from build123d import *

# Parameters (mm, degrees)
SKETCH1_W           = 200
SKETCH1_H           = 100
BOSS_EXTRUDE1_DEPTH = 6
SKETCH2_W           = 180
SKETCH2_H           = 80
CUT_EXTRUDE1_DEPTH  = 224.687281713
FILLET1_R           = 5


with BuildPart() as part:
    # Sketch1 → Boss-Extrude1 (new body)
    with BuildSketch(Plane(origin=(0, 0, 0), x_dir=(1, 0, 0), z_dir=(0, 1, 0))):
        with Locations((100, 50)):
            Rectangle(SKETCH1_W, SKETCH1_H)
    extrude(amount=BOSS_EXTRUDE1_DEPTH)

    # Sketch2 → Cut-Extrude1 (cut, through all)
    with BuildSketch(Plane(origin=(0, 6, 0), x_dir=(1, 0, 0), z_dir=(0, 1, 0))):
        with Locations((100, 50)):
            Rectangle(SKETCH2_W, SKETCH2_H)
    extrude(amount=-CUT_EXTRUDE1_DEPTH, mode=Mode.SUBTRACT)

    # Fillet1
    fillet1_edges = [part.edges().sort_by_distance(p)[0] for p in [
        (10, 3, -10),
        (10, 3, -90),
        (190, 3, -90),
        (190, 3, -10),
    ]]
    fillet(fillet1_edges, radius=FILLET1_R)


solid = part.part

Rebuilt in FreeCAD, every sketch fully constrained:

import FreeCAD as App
import Part
import Sketcher

V = App.Vector


def edges_at(feature, points):
    """Names of the edges that pass closest to the given points."""
    edges = feature.Shape.Edges
    near = lambda p: min(range(len(edges)), key=lambda i: edges[i].distToShape(Part.Vertex(*p))[0])
    return sorted({f"Edge{near(p) + 1}" for p in points})


def add_polygon(sketch, points):
    """Adds a closed chain of lines whose ends are joined by coincident constraints."""
    first, n = sketch.GeometryCount, len(points)
    for a, b in zip(points, points[1:] + points[:1]):
        sketch.addGeometry(Part.LineSegment(App.Vector(*a, 0), App.Vector(*b, 0)), False)
    for i in range(n):
        sketch.addConstraint(Sketcher.Constraint("Coincident", first + i, 2, first + (i + 1) % n, 1))

doc = App.newDocument("Part")
body = doc.addObject("PartDesign::Body", "Body")

sketch1 = body.newObject("Sketcher::SketchObject", "Sketch")
sketch1.AttachmentSupport = (doc.getObject("XZ_Plane"), [""])
sketch1.MapMode = "FlatFace"
add_polygon(sketch1, [(0, -100), (0, 0), (200, 0), (200, -100)])
sketch1.addConstraint(Sketcher.Constraint("Vertical", 0))
sketch1.addConstraint(Sketcher.Constraint("Horizontal", 1))
sketch1.addConstraint(Sketcher.Constraint("Vertical", 2))
sketch1.addConstraint(Sketcher.Constraint("Horizontal", 3))
sketch1.addConstraint(Sketcher.Constraint("Coincident", 0, 2, -1, 1))
sketch1.addConstraint(Sketcher.Constraint("DistanceX", 1, 1, 1, 2, 200.0))
sketch1.addConstraint(Sketcher.Constraint("DistanceY", 0, 1, 0, 2, 100.0))
pad1 = body.newObject("PartDesign::Pad", "Pad")
pad1.Profile = sketch1
pad1.Length = 6
pad1.Reversed = True

sketch2 = body.newObject("Sketcher::SketchObject", "Sketch001")
sketch2.AttachmentSupport = (doc.getObject("XZ_Plane"), [""])
sketch2.MapMode = "FlatFace"
sketch2.AttachmentOffset = App.Placement(V(0, 0, -6), App.Rotation())
add_polygon(sketch2, [(10, -90), (10, -10), (190, -10), (190, -90)])
sketch2.addConstraint(Sketcher.Constraint("Vertical", 0))
sketch2.addConstraint(Sketcher.Constraint("Horizontal", 1))
sketch2.addConstraint(Sketcher.Constraint("Vertical", 2))
sketch2.addConstraint(Sketcher.Constraint("Horizontal", 3))
sketch2.addConstraint(Sketcher.Constraint("DistanceX", 1, 1, 1, 2, 180.0))
sketch2.addConstraint(Sketcher.Constraint("DistanceY", 0, 1, 0, 2, 80.0))
sketch2.addConstraint(Sketcher.Constraint("DistanceX", -1, 1, 0, 2, 10.0))
sketch2.addConstraint(Sketcher.Constraint("DistanceY", 0, 2, -1, 1, 10.0))
pocket1 = body.newObject("PartDesign::Pocket", "Pocket")
pocket1.Profile = sketch2
pocket1.Type = "ThroughAll"
pocket1.Reversed = True
doc.recompute()

fillet = body.newObject("PartDesign::Fillet", "Fillet")
fillet.Base = (pocket1, edges_at(pocket1, [
    (10, 3, -10),
    (10, 3, -90),
    (190, 3, -90),
    (190, 3, -10),
]))
fillet.Radius = 5

doc.recompute()
